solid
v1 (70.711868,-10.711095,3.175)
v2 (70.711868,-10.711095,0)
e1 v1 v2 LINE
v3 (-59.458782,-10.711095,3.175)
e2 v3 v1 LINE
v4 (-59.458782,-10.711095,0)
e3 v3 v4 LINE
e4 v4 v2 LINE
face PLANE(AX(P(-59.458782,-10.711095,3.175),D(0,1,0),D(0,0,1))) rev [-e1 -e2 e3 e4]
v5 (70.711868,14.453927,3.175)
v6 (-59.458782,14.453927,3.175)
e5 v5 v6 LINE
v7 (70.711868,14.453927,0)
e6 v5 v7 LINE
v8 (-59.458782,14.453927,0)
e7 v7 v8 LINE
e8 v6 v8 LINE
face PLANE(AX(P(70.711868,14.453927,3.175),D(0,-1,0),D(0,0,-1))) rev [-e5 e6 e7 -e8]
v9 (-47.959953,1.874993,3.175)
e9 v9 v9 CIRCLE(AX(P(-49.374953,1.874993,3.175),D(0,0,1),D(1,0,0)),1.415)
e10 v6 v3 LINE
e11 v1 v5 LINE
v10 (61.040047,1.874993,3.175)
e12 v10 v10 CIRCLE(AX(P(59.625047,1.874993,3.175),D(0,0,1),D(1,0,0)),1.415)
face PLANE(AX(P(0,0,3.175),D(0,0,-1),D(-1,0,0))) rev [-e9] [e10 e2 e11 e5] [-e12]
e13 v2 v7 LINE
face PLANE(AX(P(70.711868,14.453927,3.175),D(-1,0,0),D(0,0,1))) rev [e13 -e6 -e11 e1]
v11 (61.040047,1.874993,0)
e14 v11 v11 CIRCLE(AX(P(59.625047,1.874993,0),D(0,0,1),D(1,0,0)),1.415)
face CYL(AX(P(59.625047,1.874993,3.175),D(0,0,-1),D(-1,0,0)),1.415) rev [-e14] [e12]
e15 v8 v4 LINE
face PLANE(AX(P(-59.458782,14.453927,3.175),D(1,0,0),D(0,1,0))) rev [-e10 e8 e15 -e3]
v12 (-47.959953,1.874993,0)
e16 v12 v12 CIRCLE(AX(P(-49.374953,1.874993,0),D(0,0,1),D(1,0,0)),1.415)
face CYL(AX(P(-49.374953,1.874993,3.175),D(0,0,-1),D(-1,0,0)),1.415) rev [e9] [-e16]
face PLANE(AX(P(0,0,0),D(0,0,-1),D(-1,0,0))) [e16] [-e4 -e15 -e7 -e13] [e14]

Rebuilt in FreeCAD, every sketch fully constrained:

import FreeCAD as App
import Part
import Sketcher

V = App.Vector
Q = App.Units.Quantity


def add_polygon(sketch, points):
    """Adds a closed chain of lines whose ends are joined by coincident constraints."""
    first, n = sketch.GeometryCount, len(points)
    for a, b in zip(points, points[1:] + points[:1]):
        sketch.addGeometry(Part.LineSegment(App.Vector(*a, 0), App.Vector(*b, 0)), False)
    for i in range(n):
        sketch.addConstraint(Sketcher.Constraint("Coincident", first + i, 2, first + (i + 1) % n, 1))

doc = App.newDocument("Part")
body = doc.addObject("PartDesign::Body", "Body")

# Sketch on XY plane
sketch1 = doc.addObject("Sketcher::SketchObject", "Sketch")
body.addObject(sketch1)
sketch1.AttachmentSupport = (doc.XY_Plane, [""])
sketch1.MapMode = "FlatFace"
add_polygon(sketch1, [(-59.458782, 14.453927), (-59.458782, -10.711095), (70.711868, -10.711095), (70.711868, 14.453927)])  # lines 0-3
sketch1.addGeometry(Part.Circle(V(-49.374953, 1.874993, 0), V(0, 0, 1), 1.415), False)  # 4
sketch1.addGeometry(Part.Circle(V(59.625047, 1.874993, 0), V(0, 0, 1), 1.415), False)  # 5
sketch1.addConstraint(Sketcher.Constraint("Vertical", 0))
sketch1.addConstraint(Sketcher.Constraint("Horizontal", 1))
sketch1.addConstraint(Sketcher.Constraint("Vertical", 2))
sketch1.addConstraint(Sketcher.Constraint("Horizontal", 3))
sketch1.addConstraint(Sketcher.Constraint("Equal", 4, 5))
sketch1.addConstraint(Sketcher.Constraint("Horizontal", 4, 3, 5, 3))
sketch1.addConstraint(Sketcher.Constraint("Diameter", 4, Q("2.83 mm")))
sketch1.addConstraint(Sketcher.Constraint("DistanceX", 1, 1, 1, 2, Q("130.17065 mm")))
sketch1.addConstraint(Sketcher.Constraint("DistanceY", 0, 2, 0, 1, Q("25.165022 mm")))
sketch1.addConstraint(Sketcher.Constraint("DistanceX", 4, 3, 5, 3, Q("109 mm")))
sketch1.addConstraint(Sketcher.Constraint("DistanceX", 0, 2, 4, 3, Q("10.083829 mm")))
sketch1.addConstraint(Sketcher.Constraint("DistanceY", 0, 2, 4, 3, Q("12.586088 mm")))
sketch1.addConstraint(Sketcher.Constraint("DistanceX", 4, 3, -1, 1, Q("49.374953 mm")))
sketch1.addConstraint(Sketcher.Constraint("DistanceY", -1, 1, 4, 3, Q("1.874993 mm")))
pad1 = doc.addObject("PartDesign::Pad", "Pad")
body.addObject(pad1)
pad1.Profile = sketch1
pad1.Length = Q("0.125 in")

doc.recompute()
